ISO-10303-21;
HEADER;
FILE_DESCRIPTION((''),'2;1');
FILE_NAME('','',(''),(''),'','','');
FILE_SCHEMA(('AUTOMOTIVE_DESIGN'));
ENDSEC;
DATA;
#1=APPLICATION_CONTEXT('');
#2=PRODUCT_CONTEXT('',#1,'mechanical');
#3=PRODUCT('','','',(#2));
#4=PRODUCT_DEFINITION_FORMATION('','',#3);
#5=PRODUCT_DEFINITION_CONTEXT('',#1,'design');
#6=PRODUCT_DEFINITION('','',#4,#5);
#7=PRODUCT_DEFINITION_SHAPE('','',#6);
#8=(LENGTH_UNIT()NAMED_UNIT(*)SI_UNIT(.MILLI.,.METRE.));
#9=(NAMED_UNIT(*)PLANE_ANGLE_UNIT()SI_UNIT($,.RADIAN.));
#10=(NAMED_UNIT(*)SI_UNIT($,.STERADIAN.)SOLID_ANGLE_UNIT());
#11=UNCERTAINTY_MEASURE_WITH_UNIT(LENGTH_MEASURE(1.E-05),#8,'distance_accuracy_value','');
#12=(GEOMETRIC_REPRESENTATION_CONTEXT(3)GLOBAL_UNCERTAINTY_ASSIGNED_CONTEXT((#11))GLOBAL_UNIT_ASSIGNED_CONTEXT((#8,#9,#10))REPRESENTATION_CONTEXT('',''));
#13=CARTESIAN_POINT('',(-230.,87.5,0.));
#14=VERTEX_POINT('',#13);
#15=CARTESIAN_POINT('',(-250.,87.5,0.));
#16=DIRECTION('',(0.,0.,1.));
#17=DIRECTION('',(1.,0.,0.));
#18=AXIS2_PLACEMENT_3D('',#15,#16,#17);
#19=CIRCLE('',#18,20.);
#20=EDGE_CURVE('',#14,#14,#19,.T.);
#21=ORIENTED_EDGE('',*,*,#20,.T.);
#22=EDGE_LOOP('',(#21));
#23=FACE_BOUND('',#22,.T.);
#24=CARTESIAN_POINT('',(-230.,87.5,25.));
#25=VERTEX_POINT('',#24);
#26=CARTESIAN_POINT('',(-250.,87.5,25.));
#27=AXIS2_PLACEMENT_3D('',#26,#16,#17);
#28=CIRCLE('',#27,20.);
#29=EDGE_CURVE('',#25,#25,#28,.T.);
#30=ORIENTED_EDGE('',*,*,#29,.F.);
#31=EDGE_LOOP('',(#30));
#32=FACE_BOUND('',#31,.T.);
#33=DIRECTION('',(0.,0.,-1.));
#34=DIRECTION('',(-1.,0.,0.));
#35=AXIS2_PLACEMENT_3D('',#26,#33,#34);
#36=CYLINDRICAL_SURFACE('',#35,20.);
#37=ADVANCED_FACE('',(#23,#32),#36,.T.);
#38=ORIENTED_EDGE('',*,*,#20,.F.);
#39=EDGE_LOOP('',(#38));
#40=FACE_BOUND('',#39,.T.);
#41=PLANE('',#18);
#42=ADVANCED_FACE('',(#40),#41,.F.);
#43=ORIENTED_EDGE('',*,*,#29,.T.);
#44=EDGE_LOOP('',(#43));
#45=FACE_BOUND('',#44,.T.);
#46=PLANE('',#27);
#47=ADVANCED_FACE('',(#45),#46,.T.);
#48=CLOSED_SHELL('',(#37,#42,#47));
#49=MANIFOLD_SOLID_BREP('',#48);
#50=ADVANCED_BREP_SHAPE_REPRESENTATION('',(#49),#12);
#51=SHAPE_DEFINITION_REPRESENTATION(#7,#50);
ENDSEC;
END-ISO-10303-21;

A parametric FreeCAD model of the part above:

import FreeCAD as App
import Part
import Sketcher

V = App.Vector

doc = App.newDocument("Part")
params = doc.addObject("Spreadsheet::Sheet", "Params")
for row, (alias, value) in enumerate([
    ("sketch1_diameter", "40 mm"),
    ("pad1_length", "25 mm"),
], start=1):
    params.set(f"A{row}", alias)
    params.set(f"B{row}", "=" + value)
    params.setAlias(f"B{row}", alias)

body = doc.addObject("PartDesign::Body", "Body")

sketch1 = body.newObject("Sketcher::SketchObject", "Sketch")
sketch1.AttachmentSupport = (doc.getObject("XY_Plane"), [""])
sketch1.MapMode = "FlatFace"
sketch1.addGeometry(Part.Circle(V(-250, 88, 0), V(0, 0, 1), 20), False)
sketch1.addConstraint([
    Sketcher.Constraint("Diameter", 0, 40.0),
    Sketcher.Constraint("DistanceX", 0, 3, -1, 1, 250.0),
    Sketcher.Constraint("DistanceY", -1, 1, 0, 3, 87.5),
])
sketch1.setExpression("Constraints[0]", "Params.sketch1_diameter")
pad1 = body.newObject("PartDesign::Pad", "Pad")
pad1.Profile = sketch1
pad1.setExpression("Length", "Params.pad1_length")

doc.recompute()
